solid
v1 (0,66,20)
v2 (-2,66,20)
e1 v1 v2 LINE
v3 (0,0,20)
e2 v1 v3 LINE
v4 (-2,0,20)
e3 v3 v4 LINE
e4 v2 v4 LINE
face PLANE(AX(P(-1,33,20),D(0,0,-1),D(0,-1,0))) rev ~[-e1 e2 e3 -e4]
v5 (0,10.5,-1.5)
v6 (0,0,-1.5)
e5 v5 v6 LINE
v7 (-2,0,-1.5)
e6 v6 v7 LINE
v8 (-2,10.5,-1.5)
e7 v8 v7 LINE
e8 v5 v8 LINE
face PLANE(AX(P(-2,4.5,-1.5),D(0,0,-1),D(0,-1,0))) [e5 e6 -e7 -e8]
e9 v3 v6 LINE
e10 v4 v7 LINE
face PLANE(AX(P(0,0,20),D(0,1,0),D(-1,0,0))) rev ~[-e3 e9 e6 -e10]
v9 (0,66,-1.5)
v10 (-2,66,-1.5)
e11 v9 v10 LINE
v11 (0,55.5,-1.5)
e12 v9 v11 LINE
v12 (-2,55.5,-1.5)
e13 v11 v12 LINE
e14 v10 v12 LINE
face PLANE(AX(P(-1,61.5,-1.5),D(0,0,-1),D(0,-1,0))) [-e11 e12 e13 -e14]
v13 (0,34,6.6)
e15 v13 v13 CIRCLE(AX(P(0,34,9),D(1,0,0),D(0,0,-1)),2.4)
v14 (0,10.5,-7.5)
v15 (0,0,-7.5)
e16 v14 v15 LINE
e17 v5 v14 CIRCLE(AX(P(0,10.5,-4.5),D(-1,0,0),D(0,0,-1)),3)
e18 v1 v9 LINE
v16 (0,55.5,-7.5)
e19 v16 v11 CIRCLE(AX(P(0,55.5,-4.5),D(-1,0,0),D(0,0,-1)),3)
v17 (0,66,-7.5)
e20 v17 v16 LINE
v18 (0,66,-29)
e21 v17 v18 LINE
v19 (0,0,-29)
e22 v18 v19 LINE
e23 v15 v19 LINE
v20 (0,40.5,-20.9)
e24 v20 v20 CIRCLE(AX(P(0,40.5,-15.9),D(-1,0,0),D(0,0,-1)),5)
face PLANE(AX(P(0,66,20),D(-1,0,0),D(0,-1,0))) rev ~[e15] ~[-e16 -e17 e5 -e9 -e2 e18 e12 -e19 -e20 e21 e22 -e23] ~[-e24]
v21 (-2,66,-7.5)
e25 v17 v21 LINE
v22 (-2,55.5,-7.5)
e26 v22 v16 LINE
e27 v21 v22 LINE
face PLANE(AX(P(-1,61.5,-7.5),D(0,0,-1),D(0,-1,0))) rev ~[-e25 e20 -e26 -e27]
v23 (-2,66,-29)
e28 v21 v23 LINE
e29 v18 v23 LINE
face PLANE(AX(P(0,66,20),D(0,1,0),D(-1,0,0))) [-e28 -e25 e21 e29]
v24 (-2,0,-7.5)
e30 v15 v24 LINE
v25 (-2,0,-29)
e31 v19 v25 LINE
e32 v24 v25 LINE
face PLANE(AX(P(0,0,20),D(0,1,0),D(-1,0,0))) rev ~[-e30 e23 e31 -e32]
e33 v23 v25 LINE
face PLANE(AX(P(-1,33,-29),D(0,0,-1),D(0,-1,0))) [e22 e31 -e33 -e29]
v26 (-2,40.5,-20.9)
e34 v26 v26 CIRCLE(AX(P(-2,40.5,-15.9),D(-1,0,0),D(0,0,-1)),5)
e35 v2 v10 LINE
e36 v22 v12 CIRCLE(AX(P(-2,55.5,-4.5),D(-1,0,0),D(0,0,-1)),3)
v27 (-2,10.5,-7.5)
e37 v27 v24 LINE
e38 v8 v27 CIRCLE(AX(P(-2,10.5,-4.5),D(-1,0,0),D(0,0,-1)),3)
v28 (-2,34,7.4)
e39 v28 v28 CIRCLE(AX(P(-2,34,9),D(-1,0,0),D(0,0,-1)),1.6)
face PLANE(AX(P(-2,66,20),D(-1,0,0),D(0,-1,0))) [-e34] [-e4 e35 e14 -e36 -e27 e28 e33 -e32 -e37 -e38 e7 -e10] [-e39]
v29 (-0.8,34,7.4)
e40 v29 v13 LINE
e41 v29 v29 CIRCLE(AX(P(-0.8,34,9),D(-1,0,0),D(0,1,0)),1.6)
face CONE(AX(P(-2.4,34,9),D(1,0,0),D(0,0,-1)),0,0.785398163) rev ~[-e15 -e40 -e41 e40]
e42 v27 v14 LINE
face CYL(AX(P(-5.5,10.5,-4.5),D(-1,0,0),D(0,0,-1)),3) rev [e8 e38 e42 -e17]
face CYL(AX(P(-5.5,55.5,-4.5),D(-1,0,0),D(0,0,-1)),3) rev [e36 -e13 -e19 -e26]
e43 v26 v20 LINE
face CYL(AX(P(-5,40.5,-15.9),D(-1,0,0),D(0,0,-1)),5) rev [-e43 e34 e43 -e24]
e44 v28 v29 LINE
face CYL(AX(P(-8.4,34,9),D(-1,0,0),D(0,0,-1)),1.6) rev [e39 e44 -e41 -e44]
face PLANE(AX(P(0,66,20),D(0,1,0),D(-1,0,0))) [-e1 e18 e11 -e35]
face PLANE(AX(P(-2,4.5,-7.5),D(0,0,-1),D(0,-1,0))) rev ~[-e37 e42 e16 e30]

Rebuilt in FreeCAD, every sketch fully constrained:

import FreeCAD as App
import Part
import Sketcher

doc = App.newDocument("Part")
body = doc.addObject("PartDesign::Body", "Body")

sketch1 = body.newObject("Sketcher::SketchObject", "Sketch")
sketch1.AttachmentSupport = (doc.getObject("XY_Plane"), [""])
sketch1.MapMode = "FlatFace"
sketch1.AttachmentOffset = App.Placement(App.Vector(0, 0, -6), App.Rotation())
sketch1.addGeometry(Part.Circle(App.Vector(0, 0, 0), App.Vector(0, 0, 1), 1.6), False)
sketch1.addConstraint(Sketcher.Constraint("Coincident", 0, 3, -1, 1))
sketch1.addConstraint(Sketcher.Constraint("Diameter", 0, 3.2))
pad1 = body.newObject("PartDesign::Pad", "Pad")
pad1.Profile = sketch1
pad1.Length = 10
body2 = doc.addObject("PartDesign::Body", "Body001")

sketch2 = body2.newObject("Sketcher::SketchObject", "Sketch001")
sketch2.AttachmentSupport = (doc.getObject("XZ_Plane001"), [""])
sketch2.MapMode = "FlatFace"
sketch2.addGeometry(Part.LineSegment(App.Vector(0, 0, 0), App.Vector(4, 4, 0)), False)
sketch2.addGeometry(Part.LineSegment(App.Vector(4, 4, 0), App.Vector(0, 4, 0)), False)
sketch2.addGeometry(Part.LineSegment(App.Vector(0, 4, 0), App.Vector(0, 0, 0)), False)
sketch2.addConstraint(Sketcher.Constraint("Coincident", 0, 2, 1, 1))
sketch2.addConstraint(Sketcher.Constraint("Coincident", 1, 2, 2, 1))
sketch2.addConstraint(Sketcher.Constraint("Coincident", 2, 2, 0, 1))
sketch2.addConstraint(Sketcher.Constraint("Horizontal", 1))
sketch2.addConstraint(Sketcher.Constraint("Vertical", 2))
sketch2.addConstraint(Sketcher.Constraint("Coincident", 2, 2, -1, 1))
sketch2.addConstraint(Sketcher.Constraint("Equal", 1, 2))
sketch2.addConstraint(Sketcher.Constraint("DistanceX", 1, 2, 1, 1, 4.0))
revolution = body2.newObject("PartDesign::Revolution", "Revolution")
revolution.Profile = sketch2
revolution.ReferenceAxis = (sketch2, ["V_Axis"])
revolution.Angle = 360
doc.recompute()

boolean = body2.newObject("PartDesign::Boolean", "Boolean")
boolean.Type = "Fuse"
boolean.addObjects([body])
body3 = doc.addObject("PartDesign::Body", "Body002")
doc.recompute()

body2.Placement = App.Placement(App.Vector(-2.4, 34, 9), App.Rotation(App.Vector(0, 1, 0), 90))
boolean2 = body3.newObject("PartDesign::Boolean", "Boolean001")
boolean2.Type = "Fuse"
boolean2.addObjects([body2])
body4 = doc.addObject("PartDesign::Body", "Body003")

sketch3 = body4.newObject("Sketcher::SketchObject", "Sketch002")
sketch3.AttachmentSupport = (doc.getObject("XY_Plane003"), [""])
sketch3.MapMode = "FlatFace"
sketch3.AttachmentOffset = App.Placement(App.Vector(0, 0, -1.5), App.Rotation())
sketch3.addGeometry(Part.LineSegment(App.Vector(-6, 67.5, 0), App.Vector(4, 67.5, 0)), False)
sketch3.addGeometry(Part.LineSegment(App.Vector(4, 67.5, 0), App.Vector(4, 55.5, 0)), False)
sketch3.addGeometry(Part.LineSegment(App.Vector(4, 55.5, 0), App.Vector(-6, 55.5, 0)), False)
sketch3.addGeometry(Part.LineSegment(App.Vector(-6, 55.5, 0), App.Vector(-6, 67.5, 0)), False)
sketch3.addConstraint(Sketcher.Constraint("Coincident", 0, 2, 1, 1))
sketch3.addConstraint(Sketcher.Constraint("Coincident", 1, 2, 2, 1))
sketch3.addConstraint(Sketcher.Constraint("Coincident", 2, 2, 3, 1))
sketch3.addConstraint(Sketcher.Constraint("Coincident", 3, 2, 0, 1))
sketch3.addConstraint(Sketcher.Constraint("Horizontal", 0))
sketch3.addConstraint(Sketcher.Constraint("Vertical", 1))
sketch3.addConstraint(Sketcher.Constraint("Horizontal", 2))
sketch3.addConstraint(Sketcher.Constraint("Vertical", 3))
sketch3.addConstraint(Sketcher.Constraint("DistanceX", 0, 1, 0, 2, 10.0))
sketch3.addConstraint(Sketcher.Constraint("DistanceY", 1, 2, 1, 1, 12.0))
sketch3.addConstraint(Sketcher.Constraint("DistanceX", -1, 1, 0, 2, 4.0))
sketch3.addConstraint(Sketcher.Constraint("DistanceY", -1, 1, 0, 2, 67.5))
pad2 = body4.newObject("PartDesign::Pad", "Pad001")
pad2.Profile = sketch3
pad2.Length = 6
pad2.Reversed = True
body5 = doc.addObject("PartDesign::Body", "Body004")

sketch4 = body5.newObject("Sketcher::SketchObject", "Sketch003")
sketch4.AttachmentSupport = (doc.getObject("XY_Plane004"), [""])
sketch4.MapMode = "FlatFace"
sketch4.AttachmentOffset = App.Placement(App.Vector(0, 0, -1.5), App.Rotation())
sketch4.addGeometry(Part.LineSegment(App.Vector(-7, 10.5, 0), App.Vector(3, 10.5, 0)), False)
sketch4.addGeometry(Part.LineSegment(App.Vector(3, 10.5, 0), App.Vector(3, -1.5, 0)), False)
sketch4.addGeometry(Part.LineSegment(App.Vector(3, -1.5, 0), App.Vector(-7, -1.5, 0)), False)
sketch4.addGeometry(Part.LineSegment(App.Vector(-7, -1.5, 0), App.Vector(-7, 10.5, 0)), False)
sketch4.addConstraint(Sketcher.Constraint("Coincident", 0, 2, 1, 1))
sketch4.addConstraint(Sketcher.Constraint("Coincident", 1, 2, 2, 1))
sketch4.addConstraint(Sketcher.Constraint("Coincident", 2, 2, 3, 1))
sketch4.addConstraint(Sketcher.Constraint("Coincident", 3, 2, 0, 1))
sketch4.addConstraint(Sketcher.Constraint("Horizontal", 0))
sketch4.addConstraint(Sketcher.Constraint("Vertical", 1))
sketch4.addConstraint(Sketcher.Constraint("Horizontal", 2))
sketch4.addConstraint(Sketcher.Constraint("Vertical", 3))
sketch4.addConstraint(Sketcher.Constraint("DistanceX", 0, 1, 0, 2, 10.0))
sketch4.addConstraint(Sketcher.Constraint("DistanceY", 1, 2, 1, 1, 12.0))
sketch4.addConstraint(Sketcher.Constraint("DistanceX", -1, 1, 0, 2, 3.0))
sketch4.addConstraint(Sketcher.Constraint("DistanceY", -1, 1, 0, 2, 10.5))
pad3 = body5.newObject("PartDesign::Pad", "Pad002")
pad3.Profile = sketch4
pad3.Length = 6
pad3.Reversed = True
body6 = doc.addObject("PartDesign::Body", "Body005")

sketch5 = body6.newObject("Sketcher::SketchObject", "Sketch004")
sketch5.AttachmentSupport = (doc.getObject("YZ_Plane005"), [""])
sketch5.MapMode = "FlatFace"
sketch5.AttachmentOffset = App.Placement(App.Vector(0, 0, -5.5), App.Rotation())
sketch5.addGeometry(Part.Circle(App.Vector(55.5, -4.5, 0), App.Vector(0, 0, 1), 3), False)
sketch5.addConstraint(Sketcher.Constraint("Diameter", 0, 6.0))
sketch5.addConstraint(Sketcher.Constraint("DistanceX", -1, 1, 0, 3, 55.5))
sketch5.addConstraint(Sketcher.Constraint("DistanceY", 0, 3, -1, 1, 4.5))
pad4 = body6.newObject("PartDesign::Pad", "Pad003")
pad4.Profile = sketch5
pad4.Length = 10
body7 = doc.addObject("PartDesign::Body", "Body006")

sketch6 = body7.newObject("Sketcher::SketchObject", "Sketch005")
sketch6.AttachmentSupport = (doc.getObject("YZ_Plane006"), [""])
sketch6.MapMode = "FlatFace"
sketch6.AttachmentOffset = App.Placement(App.Vector(0, 0, -5), App.Rotation())
sketch6.addGeometry(Part.Circle(App.Vector(40.5, -15.9, 0), App.Vector(0, 0, 1), 5), False)
sketch6.addConstraint(Sketcher.Constraint("Diameter", 0, 10.0))
sketch6.addConstraint(Sketcher.Constraint("DistanceX", -1, 1, 0, 3, 40.5))
sketch6.addConstraint(Sketcher.Constraint("DistanceY", 0, 3, -1, 1, 15.9))
pad5 = body7.newObject("PartDesign::Pad", "Pad004")
pad5.Profile = sketch6
pad5.Length = 10
body8 = doc.addObject("PartDesign::Body", "Body007")

sketch7 = body8.newObject("Sketcher::SketchObject", "Sketch006")
sketch7.AttachmentSupport = (doc.getObject("YZ_Plane007"), [""])
sketch7.MapMode = "FlatFace"
sketch7.AttachmentOffset = App.Placement(App.Vector(0, 0, -5.5), App.Rotation())
sketch7.addGeometry(Part.Circle(App.Vector(10.5, -4.5, 0), App.Vector(0, 0, 1), 3), False)
sketch7.addConstraint(Sketcher.Constraint("Diameter", 0, 6.0))
sketch7.addConstraint(Sketcher.Constraint("DistanceX", -1, 1, 0, 3, 10.5))
sketch7.addConstraint(Sketcher.Constraint("DistanceY", 0, 3, -1, 1, 4.5))
pad6 = body8.newObject("PartDesign::Pad", "Pad005")
pad6.Profile = sketch7
pad6.Length = 10
body9 = doc.addObject("PartDesign::Body", "Body008")

sketch8 = body9.newObject("Sketcher::SketchObject", "Sketch007")
sketch8.AttachmentSupport = (doc.getObject("XY_Plane008"), [""])
sketch8.MapMode = "FlatFace"
sketch8.AttachmentOffset = App.Placement(App.Vector(0, 0, 20), App.Rotation())
sketch8.addGeometry(Part.LineSegment(App.Vector(-2, 66, 0), App.Vector(0, 66, 0)), False)
sketch8.addGeometry(Part.LineSegment(App.Vector(0, 66, 0), App.Vector(0, 0, 0)), False)
sketch8.addGeometry(Part.LineSegment(App.Vector(0, 0, 0), App.Vector(-2, 0, 0)), False)
sketch8.addGeometry(Part.LineSegment(App.Vector(-2, 0, 0), App.Vector(-2, 66, 0)), False)
sketch8.addConstraint(Sketcher.Constraint("Coincident", 0, 2, 1, 1))
sketch8.addConstraint(Sketcher.Constraint("Coincident", 1, 2, 2, 1))
sketch8.addConstraint(Sketcher.Constraint("Coincident", 2, 2, 3, 1))
sketch8.addConstraint(Sketcher.Constraint("Coincident", 3, 2, 0, 1))
sketch8.addConstraint(Sketcher.Constraint("Horizontal", 0))
sketch8.addConstraint(Sketcher.Constraint("Vertical", 1))
sketch8.addConstraint(Sketcher.Constraint("Horizontal", 2))
sketch8.addConstraint(Sketcher.Constraint("Vertical", 3))
sketch8.addConstraint(Sketcher.Constraint("Coincident", 1, 2, -1, 1))
sketch8.addConstraint(Sketcher.Constraint("DistanceX", 0, 1, 0, 2, 2.0))
sketch8.addConstraint(Sketcher.Constraint("DistanceY", 1, 2, 1, 1, 66.0))
pad7 = body9.newObject("PartDesign::Pad", "Pad006")
pad7.Profile = sketch8
pad7.Length = 49
pad7.Reversed = True
doc.recompute()

boolean3 = body9.newObject("PartDesign::Boolean", "Boolean002")
boolean3.Type = "Cut"
boolean3.addObjects([body8])
doc.recompute()

boolean4 = body9.newObject("PartDesign::Boolean", "Boolean003")
boolean4.Type = "Cut"
boolean4.addObjects([body7])
doc.recompute()

boolean5 = body9.newObject("PartDesign::Boolean", "Boolean004")
boolean5.Type = "Cut"
boolean5.addObjects([body6])
doc.recompute()

boolean6 = body9.newObject("PartDesign::Boolean", "Boolean005")
boolean6.Type = "Cut"
boolean6.addObjects([body5])
doc.recompute()

boolean7 = body9.newObject("PartDesign::Boolean", "Boolean006")
boolean7.Type = "Cut"
boolean7.addObjects([body4])
doc.recompute()

boolean8 = body9.newObject("PartDesign::Boolean", "Boolean007")
boolean8.Type = "Cut"
boolean8.addObjects([body3])

doc.recompute()
